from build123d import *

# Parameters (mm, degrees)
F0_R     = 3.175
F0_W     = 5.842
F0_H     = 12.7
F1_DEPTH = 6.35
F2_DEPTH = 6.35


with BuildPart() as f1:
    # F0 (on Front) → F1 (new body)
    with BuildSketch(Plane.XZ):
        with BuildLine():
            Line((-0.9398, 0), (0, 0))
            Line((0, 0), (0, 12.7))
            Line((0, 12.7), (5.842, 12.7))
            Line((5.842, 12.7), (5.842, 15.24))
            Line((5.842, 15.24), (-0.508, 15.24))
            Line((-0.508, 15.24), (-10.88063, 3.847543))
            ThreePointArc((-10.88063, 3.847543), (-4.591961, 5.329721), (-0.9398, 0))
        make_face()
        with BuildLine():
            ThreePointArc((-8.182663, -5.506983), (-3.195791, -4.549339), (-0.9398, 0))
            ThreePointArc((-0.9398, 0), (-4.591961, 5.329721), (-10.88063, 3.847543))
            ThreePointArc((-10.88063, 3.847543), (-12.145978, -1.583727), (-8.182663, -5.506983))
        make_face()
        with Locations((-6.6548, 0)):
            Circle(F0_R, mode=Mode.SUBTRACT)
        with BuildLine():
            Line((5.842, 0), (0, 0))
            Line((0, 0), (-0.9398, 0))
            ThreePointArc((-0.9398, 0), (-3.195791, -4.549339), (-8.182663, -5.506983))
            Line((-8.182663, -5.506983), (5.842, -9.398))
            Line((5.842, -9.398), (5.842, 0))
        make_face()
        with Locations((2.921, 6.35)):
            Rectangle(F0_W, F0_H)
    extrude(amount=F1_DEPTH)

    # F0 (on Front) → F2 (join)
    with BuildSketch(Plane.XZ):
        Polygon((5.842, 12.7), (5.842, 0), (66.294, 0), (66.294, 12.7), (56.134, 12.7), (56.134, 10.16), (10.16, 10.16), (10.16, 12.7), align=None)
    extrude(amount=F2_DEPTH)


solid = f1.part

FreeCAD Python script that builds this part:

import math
import FreeCAD as App
import Part
import Sketcher
Q = App.Units.Quantity

doc = App.newDocument("Part")
body = doc.addObject("PartDesign::Body", "Body")

# Sketch on XZ plane
sketch1 = body.newObject("Sketcher::SketchObject", "Sketch")
sketch1.AttachmentSupport = (doc.getObject("XZ_Plane"), [""])
sketch1.MapMode = "FlatFace"
sketch1.addGeometry([
    Part.LineSegment(App.Vector(5.842, 15.24, 0), App.Vector(-0.508, 15.24, 0)),  # 0
    Part.LineSegment(App.Vector(-0.508, 15.24, 0), App.Vector(-10.88063, 3.847543, 0)),  # 1
    Part.ArcOfCircle(Part.Circle(App.Vector(-6.6548, 0, 0), App.Vector(0, 0, 1), 5.715), math.radians(137.682696), math.radians(254.493803)),  # 2
    Part.LineSegment(App.Vector(-8.182663, -5.506983, 0), App.Vector(5.842, -9.398, 0)),  # 3
    Part.LineSegment(App.Vector(5.842, -9.398, 0), App.Vector(5.842, 15.24, 0)),  # 4
    Part.Circle(App.Vector(-6.6548, 0, 0), App.Vector(0, 0, 1), 3.175),  # 5
], False)
sketch1.addConstraint([
    Sketcher.Constraint("Coincident", 0, 2, 1, 1),
    Sketcher.Constraint("Tangent", 1, 2, 2, 1),
    Sketcher.Constraint("Tangent", 2, 2, 3, 1),
    Sketcher.Constraint("Coincident", 3, 2, 4, 1),
    Sketcher.Constraint("Coincident", 4, 2, 0, 1),
    Sketcher.Constraint("Horizontal", 0),
    Sketcher.Constraint("Vertical", 4),
    Sketcher.Constraint("Coincident", 5, 3, 2, 3),
    Sketcher.Constraint("PointOnObject", 2, 3, -1),
    Sketcher.Constraint("Diameter", 5, Q("0.25 in")),
    Sketcher.Constraint("Radius", 2, Q("0.225 in")),
    Sketcher.Constraint("DistanceX", 0, 2, 0, 1, Q("0.25 in")),
    Sketcher.Constraint("DistanceY", 4, 1, 4, 2, Q("0.97 in")),
    Sketcher.Constraint("DistanceY", -1, 1, 0, 2, Q("0.6 in")),
    Sketcher.Constraint("DistanceX", 0, 2, -1, 1, Q("0.02 in")),
    Sketcher.Constraint("DistanceX", 2, 3, -1, 1, Q("0.262 in")),
])
pad1 = body.newObject("PartDesign::Pad", "Pad")
pad1.Profile = sketch1
pad1.Length = Q("0.25 in")

# Sketch on XZ plane
sketch2 = body.newObject("Sketcher::SketchObject", "Sketch001")
sketch2.AttachmentSupport = (doc.getObject("XZ_Plane"), [""])
sketch2.MapMode = "FlatFace"
sketch2.addGeometry([
    Part.LineSegment(App.Vector(5.842, 12.7, 0), App.Vector(5.842, 0, 0)),  # 0
    Part.LineSegment(App.Vector(5.842, 0, 0), App.Vector(66.294, 0, 0)),  # 1
    Part.LineSegment(App.Vector(66.294, 0, 0), App.Vector(66.294, 12.7, 0)),  # 2
    Part.LineSegment(App.Vector(66.294, 12.7, 0), App.Vector(56.134, 12.7, 0)),  # 3
    Part.LineSegment(App.Vector(56.134, 12.7, 0), App.Vector(56.134, 10.16, 0)),  # 4
    Part.LineSegment(App.Vector(56.134, 10.16, 0), App.Vector(10.16, 10.16, 0)),  # 5
    Part.LineSegment(App.Vector(10.16, 10.16, 0), App.Vector(10.16, 12.7, 0)),  # 6
    Part.LineSegment(App.Vector(10.16, 12.7, 0), App.Vector(5.842, 12.7, 0)),  # 7
], False)
sketch2.addConstraint([
    Sketcher.Constraint("Coincident", 0, 2, 1, 1),
    Sketcher.Constraint("Coincident", 1, 2, 2, 1),
    Sketcher.Constraint("Coincident", 2, 2, 3, 1),
    Sketcher.Constraint("Coincident", 3, 2, 4, 1),
    Sketcher.Constraint("Coincident", 4, 2, 5, 1),
    Sketcher.Constraint("Coincident", 5, 2, 6, 1),
    Sketcher.Constraint("Coincident", 6, 2, 7, 1),
    Sketcher.Constraint("Coincident", 7, 2, 0, 1),
    Sketcher.Constraint("Vertical", 0),
    Sketcher.Constraint("Horizontal", 1),
    Sketcher.Constraint("Vertical", 2),
    Sketcher.Constraint("Horizontal", 3),
    Sketcher.Constraint("Vertical", 4),
    Sketcher.Constraint("Horizontal", 5),
    Sketcher.Constraint("Vertical", 6),
    Sketcher.Constraint("Horizontal", 7),
    Sketcher.Constraint("PointOnObject", 0, 2, -1),
    Sketcher.Constraint("Horizontal", 3, 2, 6, 2),
    Sketcher.Constraint("DistanceX", 3, 2, 3, 1, Q("0.4 in")),
    Sketcher.Constraint("DistanceY", 0, 2, 0, 1, Q("0.5 in")),
    Sketcher.Constraint("DistanceY", 4, 2, 4, 1, Q("0.1 in")),
    Sketcher.Constraint("DistanceX", 1, 1, 1, 2, Q("2.38 in")),
    Sketcher.Constraint("DistanceX", 5, 2, 5, 1, Q("1.81 in")),
    Sketcher.Constraint("DistanceX", -1, 1, 5, 2, Q("0.4 in")),
])
pad2 = body.newObject("PartDesign::Pad", "Pad001")
pad2.Profile = sketch2
pad2.Length = Q("0.25 in")

doc.recompute()
